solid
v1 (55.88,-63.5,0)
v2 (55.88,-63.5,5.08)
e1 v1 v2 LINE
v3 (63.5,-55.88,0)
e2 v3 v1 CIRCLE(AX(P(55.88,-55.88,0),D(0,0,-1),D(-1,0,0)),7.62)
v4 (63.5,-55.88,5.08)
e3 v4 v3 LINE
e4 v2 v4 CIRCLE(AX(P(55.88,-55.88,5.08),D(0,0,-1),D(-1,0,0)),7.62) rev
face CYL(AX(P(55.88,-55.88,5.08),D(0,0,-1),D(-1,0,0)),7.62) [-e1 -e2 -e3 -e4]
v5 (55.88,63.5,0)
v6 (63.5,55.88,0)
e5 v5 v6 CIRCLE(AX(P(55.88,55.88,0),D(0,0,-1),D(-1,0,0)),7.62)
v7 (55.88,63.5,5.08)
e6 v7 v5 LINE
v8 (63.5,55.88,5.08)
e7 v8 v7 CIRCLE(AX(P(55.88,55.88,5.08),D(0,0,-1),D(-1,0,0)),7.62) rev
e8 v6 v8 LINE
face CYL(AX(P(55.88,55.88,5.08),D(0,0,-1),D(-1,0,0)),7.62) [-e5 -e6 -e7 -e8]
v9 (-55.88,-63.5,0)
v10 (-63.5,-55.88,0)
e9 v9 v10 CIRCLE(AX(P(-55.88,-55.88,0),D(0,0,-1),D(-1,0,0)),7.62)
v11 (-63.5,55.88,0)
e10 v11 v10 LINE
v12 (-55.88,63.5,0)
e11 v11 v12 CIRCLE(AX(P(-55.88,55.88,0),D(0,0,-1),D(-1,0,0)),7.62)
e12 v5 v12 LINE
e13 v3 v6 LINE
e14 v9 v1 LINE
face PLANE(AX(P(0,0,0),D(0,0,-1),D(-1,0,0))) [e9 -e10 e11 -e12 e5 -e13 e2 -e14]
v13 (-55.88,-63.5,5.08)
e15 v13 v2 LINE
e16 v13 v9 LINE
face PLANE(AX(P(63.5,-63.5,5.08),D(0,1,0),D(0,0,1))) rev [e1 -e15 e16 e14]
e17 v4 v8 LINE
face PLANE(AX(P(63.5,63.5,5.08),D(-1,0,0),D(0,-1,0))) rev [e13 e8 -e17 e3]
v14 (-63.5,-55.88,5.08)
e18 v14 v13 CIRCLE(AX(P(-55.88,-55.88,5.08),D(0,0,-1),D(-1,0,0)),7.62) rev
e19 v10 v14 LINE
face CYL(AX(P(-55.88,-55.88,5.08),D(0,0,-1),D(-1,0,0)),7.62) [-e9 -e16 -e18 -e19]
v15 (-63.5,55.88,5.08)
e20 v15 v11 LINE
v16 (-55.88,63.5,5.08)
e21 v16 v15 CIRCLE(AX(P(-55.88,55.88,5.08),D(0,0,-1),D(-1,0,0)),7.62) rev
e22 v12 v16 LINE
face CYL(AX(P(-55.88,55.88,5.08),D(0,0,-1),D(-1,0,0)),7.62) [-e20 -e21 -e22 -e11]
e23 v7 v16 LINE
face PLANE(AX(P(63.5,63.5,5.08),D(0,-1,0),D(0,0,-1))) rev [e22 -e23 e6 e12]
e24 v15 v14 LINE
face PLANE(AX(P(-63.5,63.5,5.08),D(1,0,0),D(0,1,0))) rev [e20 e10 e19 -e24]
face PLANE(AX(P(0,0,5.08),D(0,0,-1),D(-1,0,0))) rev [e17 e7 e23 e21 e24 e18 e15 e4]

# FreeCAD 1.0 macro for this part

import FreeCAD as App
import Part
import Sketcher

V = App.Vector
Q = App.Units.Quantity


def edges_at(feature, points):
    """Names of the edges that pass closest to the given points."""
    edges = feature.Shape.Edges
    near = lambda p: min(range(len(edges)), key=lambda i: edges[i].distToShape(Part.Vertex(*p))[0])
    return sorted({f"Edge{near(p) + 1}" for p in points})


def add_polygon(sketch, points):
    """Adds a closed chain of lines whose ends are joined by coincident constraints."""
    first, n = sketch.GeometryCount, len(points)
    for a, b in zip(points, points[1:] + points[:1]):
        sketch.addGeometry(Part.LineSegment(App.Vector(*a, 0), App.Vector(*b, 0)), False)
    for i in range(n):
        sketch.addConstraint(Sketcher.Constraint("Coincident", first + i, 2, first + (i + 1) % n, 1))

doc = App.newDocument("Part")
body = doc.addObject("PartDesign::Body", "Body")

# Sketch on XY plane
sketch1 = doc.addObject("Sketcher::SketchObject", "Sketch")
body.addObject(sketch1)
sketch1.AttachmentSupport = (doc.XY_Plane, [""])
sketch1.MapMode = "FlatFace"
add_polygon(sketch1, [(-64, 64), (-64, -64), (64, -64), (64, 64)])  # lines 0-3
sketch1.addConstraint(Sketcher.Constraint("Vertical", 0))
sketch1.addConstraint(Sketcher.Constraint("Horizontal", 1))
sketch1.addConstraint(Sketcher.Constraint("Vertical", 2))
sketch1.addConstraint(Sketcher.Constraint("Horizontal", 3))
sketch1.addConstraint(Sketcher.Constraint("Symmetric", 0, 2, 2, 2, -1, 1))
sketch1.addConstraint(Sketcher.Constraint("Equal", 3, 0))
sketch1.addConstraint(Sketcher.Constraint("DistanceX", 1, 1, 1, 2, Q("5 in")))
pad1 = doc.addObject("PartDesign::Pad", "Pad")
body.addObject(pad1)
pad1.Profile = sketch1
pad1.Length = Q("0.2 in")
doc.recompute()

fillet = doc.addObject("PartDesign::Fillet", "Fillet")
body.addObject(fillet)
fillet.Base = (pad1, edges_at(pad1, [
    (-63.5, 63.5, 2.54),
    (63.5, 63.5, 2.54),
    (63.5, -63.5, 2.54),
    (-63.5, -63.5, 2.54),
]))
fillet.Radius = Q("0.3 in")

doc.recompute()
